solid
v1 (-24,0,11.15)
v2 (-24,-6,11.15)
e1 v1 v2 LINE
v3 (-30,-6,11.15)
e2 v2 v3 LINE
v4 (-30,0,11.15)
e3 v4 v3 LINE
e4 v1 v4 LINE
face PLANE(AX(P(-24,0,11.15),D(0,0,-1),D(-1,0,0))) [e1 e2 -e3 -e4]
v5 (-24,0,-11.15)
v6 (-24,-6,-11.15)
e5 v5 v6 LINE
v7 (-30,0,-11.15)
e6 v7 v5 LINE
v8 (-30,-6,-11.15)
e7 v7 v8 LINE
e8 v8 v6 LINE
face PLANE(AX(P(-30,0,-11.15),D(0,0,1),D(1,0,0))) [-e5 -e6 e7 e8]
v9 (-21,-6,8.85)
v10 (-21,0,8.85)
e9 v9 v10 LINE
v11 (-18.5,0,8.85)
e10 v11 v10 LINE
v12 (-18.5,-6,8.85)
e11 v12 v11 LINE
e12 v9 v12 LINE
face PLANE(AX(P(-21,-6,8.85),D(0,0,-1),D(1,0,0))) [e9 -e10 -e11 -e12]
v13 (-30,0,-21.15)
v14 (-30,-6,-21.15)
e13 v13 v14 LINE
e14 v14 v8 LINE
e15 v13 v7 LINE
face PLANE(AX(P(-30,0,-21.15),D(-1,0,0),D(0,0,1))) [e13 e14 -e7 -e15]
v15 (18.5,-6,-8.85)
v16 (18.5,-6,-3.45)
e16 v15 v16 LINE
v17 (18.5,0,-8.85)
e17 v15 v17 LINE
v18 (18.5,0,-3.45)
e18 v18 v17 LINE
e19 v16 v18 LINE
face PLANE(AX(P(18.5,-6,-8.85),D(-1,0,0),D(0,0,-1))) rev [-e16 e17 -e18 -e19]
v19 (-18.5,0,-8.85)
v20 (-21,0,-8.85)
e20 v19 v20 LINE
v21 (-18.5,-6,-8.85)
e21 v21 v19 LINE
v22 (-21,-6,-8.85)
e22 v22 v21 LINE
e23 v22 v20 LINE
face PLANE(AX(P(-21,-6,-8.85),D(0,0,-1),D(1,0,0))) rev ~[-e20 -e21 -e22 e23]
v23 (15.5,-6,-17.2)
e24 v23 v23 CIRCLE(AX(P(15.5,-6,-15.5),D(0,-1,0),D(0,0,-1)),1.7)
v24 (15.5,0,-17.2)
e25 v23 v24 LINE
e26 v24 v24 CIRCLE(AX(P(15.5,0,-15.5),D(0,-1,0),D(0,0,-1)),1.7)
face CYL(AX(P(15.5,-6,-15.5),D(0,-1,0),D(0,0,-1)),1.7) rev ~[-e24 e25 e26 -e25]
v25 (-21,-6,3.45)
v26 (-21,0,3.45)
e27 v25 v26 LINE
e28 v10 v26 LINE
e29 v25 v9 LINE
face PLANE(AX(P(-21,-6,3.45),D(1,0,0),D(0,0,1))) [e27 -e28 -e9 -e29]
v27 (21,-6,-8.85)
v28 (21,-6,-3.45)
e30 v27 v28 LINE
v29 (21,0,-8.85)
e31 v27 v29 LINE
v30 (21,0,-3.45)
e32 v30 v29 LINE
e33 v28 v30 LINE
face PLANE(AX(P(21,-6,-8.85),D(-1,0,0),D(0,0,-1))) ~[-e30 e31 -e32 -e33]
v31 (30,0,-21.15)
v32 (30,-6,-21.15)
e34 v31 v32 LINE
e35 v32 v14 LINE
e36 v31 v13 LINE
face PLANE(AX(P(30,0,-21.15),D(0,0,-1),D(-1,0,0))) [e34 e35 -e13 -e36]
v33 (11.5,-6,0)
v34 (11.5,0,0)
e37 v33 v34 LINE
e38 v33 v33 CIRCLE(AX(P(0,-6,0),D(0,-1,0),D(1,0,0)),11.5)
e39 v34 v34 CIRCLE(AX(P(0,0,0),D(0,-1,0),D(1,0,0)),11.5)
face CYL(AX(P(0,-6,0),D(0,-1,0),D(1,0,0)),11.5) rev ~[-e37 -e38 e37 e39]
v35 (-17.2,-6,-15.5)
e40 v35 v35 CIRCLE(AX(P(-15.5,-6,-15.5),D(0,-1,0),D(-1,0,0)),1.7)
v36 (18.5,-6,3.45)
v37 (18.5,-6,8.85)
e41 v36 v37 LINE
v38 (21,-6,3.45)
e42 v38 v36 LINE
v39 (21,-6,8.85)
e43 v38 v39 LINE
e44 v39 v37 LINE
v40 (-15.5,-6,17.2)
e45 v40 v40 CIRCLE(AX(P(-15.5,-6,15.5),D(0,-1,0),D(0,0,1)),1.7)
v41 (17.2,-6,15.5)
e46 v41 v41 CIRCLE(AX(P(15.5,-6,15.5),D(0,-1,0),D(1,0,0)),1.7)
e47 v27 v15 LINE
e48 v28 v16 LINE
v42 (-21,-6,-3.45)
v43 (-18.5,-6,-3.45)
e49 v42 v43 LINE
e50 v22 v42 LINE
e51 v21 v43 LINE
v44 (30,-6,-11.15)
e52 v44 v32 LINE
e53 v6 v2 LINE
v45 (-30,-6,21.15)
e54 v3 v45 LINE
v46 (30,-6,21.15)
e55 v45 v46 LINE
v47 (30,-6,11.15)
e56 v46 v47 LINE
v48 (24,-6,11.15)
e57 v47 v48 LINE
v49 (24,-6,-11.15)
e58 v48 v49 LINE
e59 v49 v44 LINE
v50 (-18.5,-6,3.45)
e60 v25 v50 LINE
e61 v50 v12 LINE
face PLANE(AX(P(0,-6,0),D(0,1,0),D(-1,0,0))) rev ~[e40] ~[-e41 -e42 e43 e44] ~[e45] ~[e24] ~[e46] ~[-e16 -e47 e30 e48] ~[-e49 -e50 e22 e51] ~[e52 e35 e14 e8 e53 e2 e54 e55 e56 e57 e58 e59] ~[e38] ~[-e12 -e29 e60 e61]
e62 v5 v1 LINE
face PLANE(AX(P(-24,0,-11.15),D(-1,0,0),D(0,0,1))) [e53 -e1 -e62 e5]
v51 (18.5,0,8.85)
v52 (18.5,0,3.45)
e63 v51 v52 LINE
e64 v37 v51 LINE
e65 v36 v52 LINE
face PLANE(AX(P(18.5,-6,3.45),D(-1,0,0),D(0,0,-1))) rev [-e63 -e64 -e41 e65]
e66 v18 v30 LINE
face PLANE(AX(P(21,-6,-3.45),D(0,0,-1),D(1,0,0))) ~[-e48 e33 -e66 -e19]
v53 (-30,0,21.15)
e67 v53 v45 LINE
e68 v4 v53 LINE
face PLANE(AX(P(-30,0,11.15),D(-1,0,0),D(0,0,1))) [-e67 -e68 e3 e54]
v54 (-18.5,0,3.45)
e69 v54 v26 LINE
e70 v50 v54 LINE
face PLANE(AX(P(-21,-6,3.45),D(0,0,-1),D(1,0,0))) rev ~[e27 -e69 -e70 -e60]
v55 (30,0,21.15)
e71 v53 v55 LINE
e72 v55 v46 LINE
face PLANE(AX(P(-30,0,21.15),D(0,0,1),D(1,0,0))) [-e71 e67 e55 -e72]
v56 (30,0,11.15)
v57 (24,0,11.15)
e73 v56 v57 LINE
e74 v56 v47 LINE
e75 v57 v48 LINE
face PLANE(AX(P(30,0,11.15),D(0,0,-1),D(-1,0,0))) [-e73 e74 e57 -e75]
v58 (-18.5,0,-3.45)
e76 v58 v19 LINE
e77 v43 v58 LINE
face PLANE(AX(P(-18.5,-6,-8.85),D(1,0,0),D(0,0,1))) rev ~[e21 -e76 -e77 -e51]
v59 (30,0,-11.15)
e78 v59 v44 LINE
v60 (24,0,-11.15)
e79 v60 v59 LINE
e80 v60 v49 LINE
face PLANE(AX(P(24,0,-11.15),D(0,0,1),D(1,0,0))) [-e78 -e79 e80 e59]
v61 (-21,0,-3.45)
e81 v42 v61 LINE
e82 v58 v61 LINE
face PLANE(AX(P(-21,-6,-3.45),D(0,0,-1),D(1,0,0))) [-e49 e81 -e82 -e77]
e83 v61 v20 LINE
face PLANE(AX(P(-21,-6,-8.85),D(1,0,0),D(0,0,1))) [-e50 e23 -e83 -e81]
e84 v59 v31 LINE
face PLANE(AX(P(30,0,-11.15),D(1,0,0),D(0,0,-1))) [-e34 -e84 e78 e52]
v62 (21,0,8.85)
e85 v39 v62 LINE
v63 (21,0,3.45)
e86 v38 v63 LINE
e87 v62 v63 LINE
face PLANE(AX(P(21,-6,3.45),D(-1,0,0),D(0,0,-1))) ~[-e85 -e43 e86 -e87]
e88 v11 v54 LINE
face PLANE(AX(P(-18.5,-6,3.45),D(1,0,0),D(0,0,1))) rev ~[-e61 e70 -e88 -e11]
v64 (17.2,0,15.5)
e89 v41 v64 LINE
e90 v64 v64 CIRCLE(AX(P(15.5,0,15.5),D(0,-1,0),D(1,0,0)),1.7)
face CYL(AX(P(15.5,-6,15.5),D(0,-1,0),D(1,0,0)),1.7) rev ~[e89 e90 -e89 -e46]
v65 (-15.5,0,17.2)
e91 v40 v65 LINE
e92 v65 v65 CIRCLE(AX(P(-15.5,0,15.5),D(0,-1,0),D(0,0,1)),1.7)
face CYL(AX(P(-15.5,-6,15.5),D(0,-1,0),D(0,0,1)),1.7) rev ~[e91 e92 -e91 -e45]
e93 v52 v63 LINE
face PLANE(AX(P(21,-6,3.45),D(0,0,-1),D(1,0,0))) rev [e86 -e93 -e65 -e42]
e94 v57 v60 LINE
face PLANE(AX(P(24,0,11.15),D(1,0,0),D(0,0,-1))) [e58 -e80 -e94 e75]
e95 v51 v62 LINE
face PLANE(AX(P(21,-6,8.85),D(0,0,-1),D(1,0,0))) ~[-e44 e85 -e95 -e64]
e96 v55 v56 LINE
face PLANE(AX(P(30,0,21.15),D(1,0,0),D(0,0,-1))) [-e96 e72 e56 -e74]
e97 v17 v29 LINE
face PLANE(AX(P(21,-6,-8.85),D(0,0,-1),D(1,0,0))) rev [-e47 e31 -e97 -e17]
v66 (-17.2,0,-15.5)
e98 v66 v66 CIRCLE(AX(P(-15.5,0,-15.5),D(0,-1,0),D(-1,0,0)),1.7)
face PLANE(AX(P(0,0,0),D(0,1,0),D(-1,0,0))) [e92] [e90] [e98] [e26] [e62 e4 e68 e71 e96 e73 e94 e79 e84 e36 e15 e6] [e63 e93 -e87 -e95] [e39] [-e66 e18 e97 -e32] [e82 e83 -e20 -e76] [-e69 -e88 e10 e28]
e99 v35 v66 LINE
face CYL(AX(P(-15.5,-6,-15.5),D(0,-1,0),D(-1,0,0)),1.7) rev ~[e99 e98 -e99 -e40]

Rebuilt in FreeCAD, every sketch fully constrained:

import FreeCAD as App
import Part
import Sketcher

V = App.Vector

doc = App.newDocument("Part")
body = doc.addObject("PartDesign::Body", "Body")

# Sketch on XZ plane
sketch1 = doc.addObject("Sketcher::SketchObject", "Sketch")
body.addObject(sketch1)
sketch1.AttachmentSupport = (doc.XZ_Plane, [""])
sketch1.MapMode = "FlatFace"
sketch1.addGeometry(Part.LineSegment(V(30, 21, 0), V(-30, 21, 0)), False)
sketch1.addGeometry(Part.LineSegment(V(-30, 21, 0), V(-30, 11, 0)), False)
sketch1.addGeometry(Part.LineSegment(V(-30, 11, 0), V(-24, 11, 0)), False)
sketch1.addGeometry(Part.LineSegment(V(-24, 11, 0), V(-24, -11, 0)), False)
sketch1.addGeometry(Part.LineSegment(V(-24, -11, 0), V(-30, -11, 0)), False)
sketch1.addGeometry(Part.LineSegment(V(-30, -11, 0), V(-30, -21, 0)), False)
sketch1.addGeometry(Part.LineSegment(V(-30, -21, 0), V(30, -21, 0)), False)
sketch1.addGeometry(Part.LineSegment(V(30, -21, 0), V(30, -11, 0)), False)
sketch1.addGeometry(Part.LineSegment(V(30, -11, 0), V(24, -11, 0)), False)
sketch1.addGeometry(Part.LineSegment(V(24, -11, 0), V(24, 11, 0)), False)
sketch1.addGeometry(Part.LineSegment(V(24, 11, 0), V(30, 11, 0)), False)
sketch1.addGeometry(Part.LineSegment(V(30, 11, 0), V(30, 21, 0)), False)
sketch1.addConstraint(Sketcher.Constraint("Coincident", 0, 2, 1, 1))
sketch1.addConstraint(Sketcher.Constraint("Coincident", 1, 2, 2, 1))
sketch1.addConstraint(Sketcher.Constraint("Coincident", 2, 2, 3, 1))
sketch1.addConstraint(Sketcher.Constraint("Coincident", 3, 2, 4, 1))
sketch1.addConstraint(Sketcher.Constraint("Coincident", 4, 2, 5, 1))
sketch1.addConstraint(Sketcher.Constraint("Coincident", 5, 2, 6, 1))
sketch1.addConstraint(Sketcher.Constraint("Coincident", 6, 2, 7, 1))
sketch1.addConstraint(Sketcher.Constraint("Coincident", 7, 2, 8, 1))
sketch1.addConstraint(Sketcher.Constraint("Coincident", 8, 2, 9, 1))
sketch1.addConstraint(Sketcher.Constraint("Coincident", 9, 2, 10, 1))
sketch1.addConstraint(Sketcher.Constraint("Coincident", 10, 2, 11, 1))
sketch1.addConstraint(Sketcher.Constraint("Coincident", 11, 2, 0, 1))
sketch1.addConstraint(Sketcher.Constraint("Horizontal", 0))
sketch1.addConstraint(Sketcher.Constraint("Vertical", 1))
sketch1.addConstraint(Sketcher.Constraint("Horizontal", 2))
sketch1.addConstraint(Sketcher.Constraint("Vertical", 3))
sketch1.addConstraint(Sketcher.Constraint("Horizontal", 4))
sketch1.addConstraint(Sketcher.Constraint("Vertical", 5))
sketch1.addConstraint(Sketcher.Constraint("Horizontal", 6))
sketch1.addConstraint(Sketcher.Constraint("Vertical", 7))
sketch1.addConstraint(Sketcher.Constraint("Horizontal", 8))
sketch1.addConstraint(Sketcher.Constraint("Vertical", 9))
sketch1.addConstraint(Sketcher.Constraint("Horizontal", 10))
sketch1.addConstraint(Sketcher.Constraint("Vertical", 11))
sketch1.addConstraint(Sketcher.Constraint("Symmetric", 0, 2, 6, 2, -1, 1))
sketch1.addConstraint(Sketcher.Constraint("Symmetric", 2, 2, 8, 2, -1, 1))
sketch1.addConstraint(Sketcher.Constraint("Symmetric", 4, 2, 10, 2, -1, 1))
sketch1.addConstraint(Sketcher.Constraint("Symmetric", 4, 2, 7, 2, -2))
sketch1.addConstraint(Sketcher.Constraint("DistanceX", 0, 2, 0, 1, 60.0))
sketch1.addConstraint(Sketcher.Constraint("DistanceX", 2, 1, 2, 2, 6.0))
sketch1.addConstraint(Sketcher.Constraint("DistanceY", 1, 2, 1, 1, 10.0))
sketch1.addConstraint(Sketcher.Constraint("DistanceY", 3, 2, 3, 1, 22.3))
pad1 = doc.addObject("PartDesign::Pad", "Pad")
body.addObject(pad1)
pad1.Profile = sketch1
pad1.Length = 6

# Sketch on XZ plane
sketch2 = doc.addObject("Sketcher::SketchObject", "Sketch001")
body.addObject(sketch2)
sketch2.AttachmentSupport = (doc.XZ_Plane, [""])
sketch2.MapMode = "FlatFace"
sketch2.AttachmentOffset = App.Placement(V(0, 0, 6), App.Rotation())
sketch2.addGeometry(Part.Circle(V(0, 0, 0), V(0, 0, 1), 12), False)
sketch2.addConstraint(Sketcher.Constraint("Coincident", 0, 3, -1, 1))
sketch2.addConstraint(Sketcher.Constraint("Diameter", 0, 23.0))
pocket1 = doc.addObject("PartDesign::Pocket", "Pocket")
body.addObject(pocket1)
pocket1.Profile = sketch2
pocket1.Type = "ThroughAll"

# Sketch on XZ plane
sketch3 = doc.addObject("Sketcher::SketchObject", "Sketch002")
body.addObject(sketch3)
sketch3.AttachmentSupport = (doc.XZ_Plane, [""])
sketch3.MapMode = "FlatFace"
sketch3.AttachmentOffset = App.Placement(V(0, 0, 6), App.Rotation())
sketch3.addGeometry(Part.LineSegment(V(-21, 8.8, 0), V(-21, 3.5, 0)), False)
sketch3.addGeometry(Part.LineSegment(V(-21, 3.5, 0), V(-18.5, 3.5, 0)), False)
sketch3.addGeometry(Part.LineSegment(V(-18.5, 3.5, 0), V(-18.5, 8.8, 0)), False)
sketch3.addGeometry(Part.LineSegment(V(-18.5, 8.8, 0), V(-21, 8.8, 0)), False)
sketch3.addGeometry(Part.LineSegment(V(-21, -3.5, 0), V(-21, -8.8, 0)), False)
sketch3.addGeometry(Part.LineSegment(V(-21, -8.8, 0), V(-18.5, -8.8, 0)), False)
sketch3.addGeometry(Part.LineSegment(V(-18.5, -8.8, 0), V(-18.5, -3.5, 0)), False)
sketch3.addGeometry(Part.LineSegment(V(-18.5, -3.5, 0), V(-21, -3.5, 0)), False)
sketch3.addConstraint(Sketcher.Constraint("Coincident", 0, 2, 1, 1))
sketch3.addConstraint(Sketcher.Constraint("Coincident", 1, 2, 2, 1))
sketch3.addConstraint(Sketcher.Constraint("Coincident", 2, 2, 3, 1))
sketch3.addConstraint(Sketcher.Constraint("Coincident", 3, 2, 0, 1))
sketch3.addConstraint(Sketcher.Constraint("Coincident", 4, 2, 5, 1))
sketch3.addConstraint(Sketcher.Constraint("Coincident", 5, 2, 6, 1))
sketch3.addConstraint(Sketcher.Constraint("Coincident", 6, 2, 7, 1))
sketch3.addConstraint(Sketcher.Constraint("Coincident", 7, 2, 4, 1))
sketch3.addConstraint(Sketcher.Constraint("Vertical", 0))
sketch3.addConstraint(Sketcher.Constraint("Horizontal", 1))
sketch3.addConstraint(Sketcher.Constraint("Vertical", 2))
sketch3.addConstraint(Sketcher.Constraint("Horizontal", 3))
sketch3.addConstraint(Sketcher.Constraint("Vertical", 4))
sketch3.addConstraint(Sketcher.Constraint("Horizontal", 5))
sketch3.addConstraint(Sketcher.Constraint("Vertical", 6))
sketch3.addConstraint(Sketcher.Constraint("Horizontal", 7))
sketch3.addConstraint(Sketcher.Constraint("Symmetric", 3, 2, 4, 2, -1))
sketch3.addConstraint(Sketcher.Constraint("Symmetric", 1, 2, 6, 2, -1))
sketch3.addConstraint(Sketcher.Constraint("DistanceX", 1, 1, 1, 2, 2.5))
sketch3.addConstraint(Sketcher.Constraint("DistanceY", 0, 2, 0, 1, 5.4))
sketch3.addConstraint(Sketcher.Constraint("DistanceX", 0, 2, -1, 1, 21.0))
sketch3.addConstraint(Sketcher.Constraint("DistanceY", 4, 2, 0, 2, 12.3))
pocket2 = doc.addObject("PartDesign::Pocket", "Pocket001")
body.addObject(pocket2)
pocket2.Profile = sketch3
pocket2.Type = "ThroughAll"
doc.recompute()

mirrored = doc.addObject("PartDesign::Mirrored", "Mirrored")
body.addObject(mirrored)
mirrored.Originals = [pocket2]
mirrored.MirrorPlane = (doc.YZ_Plane, [""])
body.Tip = mirrored

# Sketch on XZ plane
sketch4 = doc.addObject("Sketcher::SketchObject", "Sketch003")
body.addObject(sketch4)
sketch4.AttachmentSupport = (doc.XZ_Plane, [""])
sketch4.MapMode = "FlatFace"
sketch4.AttachmentOffset = App.Placement(V(0, 0, 6), App.Rotation())
sketch4.addGeometry(Part.Circle(V(15.5, 15.5, 0), V(0, 0, 1), 1.7), False)
sketch4.addConstraint(Sketcher.Constraint("Diameter", 0, 3.4))
sketch4.addConstraint(Sketcher.Constraint("DistanceX", -1, 1, 0, 3, 15.5))
sketch4.addConstraint(Sketcher.Constraint("DistanceY", -1, 1, 0, 3, 15.5))
pocket3 = doc.addObject("PartDesign::Pocket", "Pocket002")
body.addObject(pocket3)
pocket3.Profile = sketch4
pocket3.Type = "ThroughAll"
doc.recompute()

polarpattern = doc.addObject("PartDesign::PolarPattern", "PolarPattern")
body.addObject(polarpattern)
polarpattern.Originals = [pocket3]
polarpattern.Axis = (doc.Y_Axis, [""])
polarpattern.Angle = 360
polarpattern.Occurrences = 4
body.Tip = polarpattern

doc.recompute()
